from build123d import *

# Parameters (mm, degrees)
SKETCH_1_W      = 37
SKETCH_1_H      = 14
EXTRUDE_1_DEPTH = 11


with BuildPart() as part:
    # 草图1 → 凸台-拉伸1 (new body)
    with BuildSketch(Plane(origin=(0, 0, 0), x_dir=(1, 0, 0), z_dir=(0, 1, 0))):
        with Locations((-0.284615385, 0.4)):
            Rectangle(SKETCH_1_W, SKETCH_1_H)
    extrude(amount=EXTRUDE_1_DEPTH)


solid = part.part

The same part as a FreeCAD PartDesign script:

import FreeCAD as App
import Part
import Sketcher


def add_polygon(sketch, points):
    """Adds a closed chain of lines whose ends are joined by coincident constraints."""
    first, n = sketch.GeometryCount, len(points)
    for a, b in zip(points, points[1:] + points[:1]):
        sketch.addGeometry(Part.LineSegment(App.Vector(*a, 0), App.Vector(*b, 0)), False)
    for i in range(n):
        sketch.addConstraint(Sketcher.Constraint("Coincident", first + i, 2, first + (i + 1) % n, 1))

doc = App.newDocument("Part")
body = doc.addObject("PartDesign::Body", "Body")

sketch1 = body.newObject("Sketcher::SketchObject", "Sketch")
sketch1.AttachmentSupport = (doc.getObject("XZ_Plane"), [""])
sketch1.MapMode = "FlatFace"
add_polygon(sketch1, [(-19, -7), (-19, 7), (18, 7), (18, -7)])
sketch1.addConstraint([
    Sketcher.Constraint("Vertical", 0),
    Sketcher.Constraint("Horizontal", 1),
    Sketcher.Constraint("Vertical", 2),
    Sketcher.Constraint("Horizontal", 3),
    Sketcher.Constraint("DistanceX", 1, 1, 1, 2, 37.0),
    Sketcher.Constraint("DistanceY", 0, 1, 0, 2, 14.0),
    Sketcher.Constraint("DistanceY", -1, 1, 0, 2, 6.6),
    Sketcher.Constraint("DistanceX", 0, 2, -1, 1, 18.784615),
])
pad1 = body.newObject("PartDesign::Pad", "Pad")
pad1.Profile = sketch1
pad1.Length = 11
pad1.Reversed = True

doc.recompute()
